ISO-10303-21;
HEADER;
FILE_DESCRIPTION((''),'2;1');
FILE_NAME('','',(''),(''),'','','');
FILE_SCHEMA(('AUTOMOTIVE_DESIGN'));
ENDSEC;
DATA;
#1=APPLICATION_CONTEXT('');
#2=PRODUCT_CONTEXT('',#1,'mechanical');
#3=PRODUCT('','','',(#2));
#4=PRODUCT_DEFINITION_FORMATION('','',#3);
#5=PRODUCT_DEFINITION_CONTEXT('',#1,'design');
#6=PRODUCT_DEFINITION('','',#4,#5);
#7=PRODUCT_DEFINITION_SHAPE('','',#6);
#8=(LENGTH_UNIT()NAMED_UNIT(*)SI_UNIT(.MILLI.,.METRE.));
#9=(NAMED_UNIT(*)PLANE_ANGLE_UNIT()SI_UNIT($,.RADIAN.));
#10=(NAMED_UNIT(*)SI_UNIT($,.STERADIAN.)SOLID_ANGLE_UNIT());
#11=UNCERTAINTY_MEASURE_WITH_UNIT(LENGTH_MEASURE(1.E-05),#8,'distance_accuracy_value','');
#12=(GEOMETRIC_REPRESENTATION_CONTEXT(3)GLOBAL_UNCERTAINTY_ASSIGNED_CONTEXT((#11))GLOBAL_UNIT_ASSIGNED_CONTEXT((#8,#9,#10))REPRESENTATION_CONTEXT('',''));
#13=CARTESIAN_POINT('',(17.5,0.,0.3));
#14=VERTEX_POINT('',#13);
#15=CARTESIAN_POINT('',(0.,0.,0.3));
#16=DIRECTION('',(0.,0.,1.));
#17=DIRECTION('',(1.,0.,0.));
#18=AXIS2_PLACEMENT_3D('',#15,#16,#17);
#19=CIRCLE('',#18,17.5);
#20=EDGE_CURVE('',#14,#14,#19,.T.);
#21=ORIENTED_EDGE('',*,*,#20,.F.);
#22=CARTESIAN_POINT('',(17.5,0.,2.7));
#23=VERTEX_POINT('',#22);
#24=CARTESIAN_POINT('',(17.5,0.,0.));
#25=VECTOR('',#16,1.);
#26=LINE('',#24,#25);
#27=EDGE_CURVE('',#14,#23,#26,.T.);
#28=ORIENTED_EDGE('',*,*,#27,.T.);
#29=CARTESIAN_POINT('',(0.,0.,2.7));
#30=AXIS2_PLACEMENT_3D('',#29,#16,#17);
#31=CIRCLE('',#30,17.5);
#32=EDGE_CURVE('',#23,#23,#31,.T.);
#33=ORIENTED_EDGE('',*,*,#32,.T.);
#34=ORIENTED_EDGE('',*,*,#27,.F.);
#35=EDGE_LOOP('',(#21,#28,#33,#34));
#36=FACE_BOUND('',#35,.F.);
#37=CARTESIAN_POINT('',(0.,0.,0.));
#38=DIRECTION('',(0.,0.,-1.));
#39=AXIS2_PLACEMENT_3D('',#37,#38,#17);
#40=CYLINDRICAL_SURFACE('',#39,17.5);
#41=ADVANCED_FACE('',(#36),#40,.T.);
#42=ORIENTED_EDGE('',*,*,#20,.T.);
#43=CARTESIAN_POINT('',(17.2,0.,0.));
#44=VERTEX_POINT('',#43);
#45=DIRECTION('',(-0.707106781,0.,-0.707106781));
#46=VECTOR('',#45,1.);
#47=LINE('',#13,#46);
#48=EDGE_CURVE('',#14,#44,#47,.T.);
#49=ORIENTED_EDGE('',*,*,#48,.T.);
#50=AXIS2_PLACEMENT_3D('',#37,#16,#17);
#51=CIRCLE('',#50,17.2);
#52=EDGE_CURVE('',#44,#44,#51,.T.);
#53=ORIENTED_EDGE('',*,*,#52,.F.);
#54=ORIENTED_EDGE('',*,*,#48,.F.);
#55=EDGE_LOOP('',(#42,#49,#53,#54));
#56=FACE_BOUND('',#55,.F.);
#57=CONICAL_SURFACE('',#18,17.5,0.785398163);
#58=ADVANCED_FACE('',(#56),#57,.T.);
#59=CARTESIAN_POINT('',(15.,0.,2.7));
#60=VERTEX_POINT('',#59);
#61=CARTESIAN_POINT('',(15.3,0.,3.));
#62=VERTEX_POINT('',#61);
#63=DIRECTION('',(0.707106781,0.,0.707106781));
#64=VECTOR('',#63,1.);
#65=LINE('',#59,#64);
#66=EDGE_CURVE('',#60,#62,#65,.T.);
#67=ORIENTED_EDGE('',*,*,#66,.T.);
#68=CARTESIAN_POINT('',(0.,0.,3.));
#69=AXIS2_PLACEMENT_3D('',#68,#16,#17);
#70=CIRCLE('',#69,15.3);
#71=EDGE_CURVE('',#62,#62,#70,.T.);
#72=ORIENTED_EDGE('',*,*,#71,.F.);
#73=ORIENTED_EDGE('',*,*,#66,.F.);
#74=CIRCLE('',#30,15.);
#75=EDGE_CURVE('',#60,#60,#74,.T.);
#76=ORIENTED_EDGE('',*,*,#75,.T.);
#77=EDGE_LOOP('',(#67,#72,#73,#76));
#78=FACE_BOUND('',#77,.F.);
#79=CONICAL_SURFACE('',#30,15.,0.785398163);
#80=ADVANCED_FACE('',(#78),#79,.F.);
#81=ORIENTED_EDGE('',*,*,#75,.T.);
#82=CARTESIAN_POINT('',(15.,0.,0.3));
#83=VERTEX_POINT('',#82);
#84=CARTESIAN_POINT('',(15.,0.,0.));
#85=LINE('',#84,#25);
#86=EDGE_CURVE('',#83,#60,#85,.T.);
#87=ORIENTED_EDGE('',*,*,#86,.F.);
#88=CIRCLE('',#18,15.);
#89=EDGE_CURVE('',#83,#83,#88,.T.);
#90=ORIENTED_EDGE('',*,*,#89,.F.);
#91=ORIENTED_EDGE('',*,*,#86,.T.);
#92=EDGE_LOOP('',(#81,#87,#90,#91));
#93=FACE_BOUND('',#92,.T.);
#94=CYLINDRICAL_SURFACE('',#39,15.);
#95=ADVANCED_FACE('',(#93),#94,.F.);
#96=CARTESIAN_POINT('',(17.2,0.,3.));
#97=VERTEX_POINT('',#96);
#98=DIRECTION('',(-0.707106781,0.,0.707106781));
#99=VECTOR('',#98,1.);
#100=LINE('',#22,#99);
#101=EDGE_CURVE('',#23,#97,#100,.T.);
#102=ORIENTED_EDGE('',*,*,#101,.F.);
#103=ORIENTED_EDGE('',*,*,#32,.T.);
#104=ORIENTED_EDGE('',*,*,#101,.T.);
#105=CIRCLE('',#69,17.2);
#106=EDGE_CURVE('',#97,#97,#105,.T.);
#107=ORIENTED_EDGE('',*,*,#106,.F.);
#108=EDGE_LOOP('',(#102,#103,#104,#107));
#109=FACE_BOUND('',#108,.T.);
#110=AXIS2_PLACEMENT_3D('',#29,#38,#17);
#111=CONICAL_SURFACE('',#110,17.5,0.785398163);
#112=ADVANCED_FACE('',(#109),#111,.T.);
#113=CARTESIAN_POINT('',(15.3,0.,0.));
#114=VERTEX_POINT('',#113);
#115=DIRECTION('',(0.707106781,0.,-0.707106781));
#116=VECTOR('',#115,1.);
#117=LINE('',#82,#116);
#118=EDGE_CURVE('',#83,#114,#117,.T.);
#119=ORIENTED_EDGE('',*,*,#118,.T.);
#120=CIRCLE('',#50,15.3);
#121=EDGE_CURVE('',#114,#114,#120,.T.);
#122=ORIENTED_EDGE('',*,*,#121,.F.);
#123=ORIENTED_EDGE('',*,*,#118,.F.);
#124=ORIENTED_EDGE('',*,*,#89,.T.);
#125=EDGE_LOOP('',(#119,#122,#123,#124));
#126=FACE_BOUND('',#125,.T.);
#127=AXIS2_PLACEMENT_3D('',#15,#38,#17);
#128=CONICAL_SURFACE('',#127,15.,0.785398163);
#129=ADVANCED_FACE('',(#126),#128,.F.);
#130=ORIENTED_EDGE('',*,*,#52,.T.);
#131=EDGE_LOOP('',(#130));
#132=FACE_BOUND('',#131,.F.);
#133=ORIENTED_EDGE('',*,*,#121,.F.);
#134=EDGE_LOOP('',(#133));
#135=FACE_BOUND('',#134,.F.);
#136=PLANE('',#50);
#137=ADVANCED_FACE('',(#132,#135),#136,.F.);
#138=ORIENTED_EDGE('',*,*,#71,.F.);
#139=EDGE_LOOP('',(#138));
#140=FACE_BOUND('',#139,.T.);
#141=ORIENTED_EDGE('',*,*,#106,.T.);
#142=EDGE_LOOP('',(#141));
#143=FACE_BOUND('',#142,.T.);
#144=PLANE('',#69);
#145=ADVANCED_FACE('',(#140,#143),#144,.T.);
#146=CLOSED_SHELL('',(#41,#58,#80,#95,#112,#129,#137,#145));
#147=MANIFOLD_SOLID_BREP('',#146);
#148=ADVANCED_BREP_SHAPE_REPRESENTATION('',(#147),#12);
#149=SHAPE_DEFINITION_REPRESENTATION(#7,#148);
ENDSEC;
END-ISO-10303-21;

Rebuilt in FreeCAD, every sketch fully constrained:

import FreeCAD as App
import Part
import Sketcher
from FreeCAD import Vector
Q = App.Units.Quantity


def edges_at(feature, points):
    """Names of the edges that pass closest to the given points."""
    edges = feature.Shape.Edges
    near = lambda p: min(range(len(edges)), key=lambda i: edges[i].distToShape(Part.Vertex(*p))[0])
    return sorted({f"Edge{near(p) + 1}" for p in points})

doc = App.newDocument("Part")
body = doc.addObject("PartDesign::Body", "Body")

sketch1 = body.newObject("Sketcher::SketchObject", "Sketch")
sketch1.AttachmentSupport = (doc.getObject("XY_Plane"), [""])
sketch1.MapMode = "FlatFace"
sketch1.addGeometry([
    Part.Circle(Vector(0, 0, 0), Vector(0, 0, 1), 18),
    Part.Circle(Vector(0, 0, 0), Vector(0, 0, 1), 15),
], False)
sketch1.addConstraint([
    Sketcher.Constraint("Coincident", 0, 3, -1, 1),
    Sketcher.Constraint("Coincident", 1, 3, -1, 1),
    Sketcher.Constraint("Diameter", 0, Q("35 mm")),
    Sketcher.Constraint("Diameter", 1, Q("30 mm")),
])
pad1 = body.newObject("PartDesign::Pad", "Pad")
pad1.Profile = sketch1
pad1.Length = 3
doc.recompute()

chamfer = body.newObject("PartDesign::Chamfer", "Chamfer")
chamfer.Base = (pad1, edges_at(pad1, [
    (-17.5, 0, 3),
    (-17.5, 0, 0),
    (-15, 0, 0),
    (-15, 0, 3),
]))
chamfer.Size = 0.3

doc.recompute()
